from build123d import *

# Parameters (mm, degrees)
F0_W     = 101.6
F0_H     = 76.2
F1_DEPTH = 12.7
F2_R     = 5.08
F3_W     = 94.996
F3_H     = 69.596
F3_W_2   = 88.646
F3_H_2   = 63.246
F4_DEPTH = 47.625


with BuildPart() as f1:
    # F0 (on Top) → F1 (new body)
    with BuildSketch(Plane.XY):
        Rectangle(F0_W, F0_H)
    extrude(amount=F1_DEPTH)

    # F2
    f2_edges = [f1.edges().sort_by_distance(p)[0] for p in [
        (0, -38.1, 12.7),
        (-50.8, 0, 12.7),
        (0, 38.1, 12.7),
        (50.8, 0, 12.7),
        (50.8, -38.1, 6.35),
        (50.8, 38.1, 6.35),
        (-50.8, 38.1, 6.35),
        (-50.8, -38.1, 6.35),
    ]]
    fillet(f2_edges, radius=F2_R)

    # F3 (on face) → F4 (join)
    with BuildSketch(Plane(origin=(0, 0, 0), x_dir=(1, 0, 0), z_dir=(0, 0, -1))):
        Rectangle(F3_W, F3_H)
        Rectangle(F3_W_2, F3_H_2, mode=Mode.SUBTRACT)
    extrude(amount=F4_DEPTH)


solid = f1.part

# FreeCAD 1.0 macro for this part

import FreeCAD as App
import Part
import Sketcher

V = App.Vector
Q = App.Units.Quantity


def edges_at(feature, points):
    """Names of the edges that pass closest to the given points."""
    edges = feature.Shape.Edges
    near = lambda p: min(range(len(edges)), key=lambda i: edges[i].distToShape(Part.Vertex(*p))[0])
    return sorted({f"Edge{near(p) + 1}" for p in points})

doc = App.newDocument("Part")
body = doc.addObject("PartDesign::Body", "Body")

sketch1 = doc.addObject("Sketcher::SketchObject", "Sketch")
body.addObject(sketch1)
sketch1.AttachmentSupport = (doc.XY_Plane, [""])
sketch1.MapMode = "FlatFace"
sketch1.addGeometry(Part.LineSegment(V(-50.8, 38.1, 0), V(-50.8, -38.1, 0)), False)
sketch1.addGeometry(Part.LineSegment(V(-50.8, -38.1, 0), V(50.8, -38.1, 0)), False)
sketch1.addGeometry(Part.LineSegment(V(50.8, -38.1, 0), V(50.8, 38.1, 0)), False)
sketch1.addGeometry(Part.LineSegment(V(50.8, 38.1, 0), V(-50.8, 38.1, 0)), False)
sketch1.addConstraint(Sketcher.Constraint("Coincident", 0, 2, 1, 1))
sketch1.addConstraint(Sketcher.Constraint("Coincident", 1, 2, 2, 1))
sketch1.addConstraint(Sketcher.Constraint("Coincident", 2, 2, 3, 1))
sketch1.addConstraint(Sketcher.Constraint("Coincident", 3, 2, 0, 1))
sketch1.addConstraint(Sketcher.Constraint("Vertical", 0))
sketch1.addConstraint(Sketcher.Constraint("Horizontal", 1))
sketch1.addConstraint(Sketcher.Constraint("Vertical", 2))
sketch1.addConstraint(Sketcher.Constraint("Horizontal", 3))
sketch1.addConstraint(Sketcher.Constraint("Symmetric", 0, 2, 2, 2, -1, 1))
sketch1.addConstraint(Sketcher.Constraint("DistanceX", 1, 1, 1, 2, Q("4 in")))
sketch1.addConstraint(Sketcher.Constraint("DistanceY", 0, 2, 0, 1, Q("3 in")))
pad1 = doc.addObject("PartDesign::Pad", "Pad")
body.addObject(pad1)
pad1.Profile = sketch1
pad1.Length = Q("0.5 in")
doc.recompute()

fillet = doc.addObject("PartDesign::Fillet", "Fillet")
body.addObject(fillet)
fillet.Base = (pad1, edges_at(pad1, [
    (0, -38.1, 12.7),
    (-50.8, 0, 12.7),
    (0, 38.1, 12.7),
    (50.8, 0, 12.7),
    (50.8, -38.1, 6.35),
    (50.8, 38.1, 6.35),
    (-50.8, 38.1, 6.35),
    (-50.8, -38.1, 6.35),
]))
fillet.Radius = Q("0.2 in")

sketch2 = doc.addObject("Sketcher::SketchObject", "Sketch001")
body.addObject(sketch2)
sketch2.AttachmentSupport = (doc.XY_Plane, [""])
sketch2.MapMode = "FlatFace"
sketch2.addGeometry(Part.LineSegment(V(-47.498, -34.798, 0), V(-47.498, 34.798, 0)), False)
sketch2.addGeometry(Part.LineSegment(V(-47.498, 34.798, 0), V(47.498, 34.798, 0)), False)
sketch2.addGeometry(Part.LineSegment(V(47.498, 34.798, 0), V(47.498, -34.798, 0)), False)
sketch2.addGeometry(Part.LineSegment(V(47.498, -34.798, 0), V(-47.498, -34.798, 0)), False)
sketch2.addGeometry(Part.LineSegment(V(44.323, 31.623, 0), V(-44.323, 31.623, 0)), False)
sketch2.addGeometry(Part.LineSegment(V(-44.323, 31.623, 0), V(-44.323, -31.623, 0)), False)
sketch2.addGeometry(Part.LineSegment(V(-44.323, -31.623, 0), V(44.323, -31.623, 0)), False)
sketch2.addGeometry(Part.LineSegment(V(44.323, -31.623, 0), V(44.323, 31.623, 0)), False)
sketch2.addConstraint(Sketcher.Constraint("Coincident", 0, 2, 1, 1))
sketch2.addConstraint(Sketcher.Constraint("Coincident", 1, 2, 2, 1))
sketch2.addConstraint(Sketcher.Constraint("Coincident", 2, 2, 3, 1))
sketch2.addConstraint(Sketcher.Constraint("Coincident", 3, 2, 0, 1))
sketch2.addConstraint(Sketcher.Constraint("Coincident", 4, 2, 5, 1))
sketch2.addConstraint(Sketcher.Constraint("Coincident", 5, 2, 6, 1))
sketch2.addConstraint(Sketcher.Constraint("Coincident", 6, 2, 7, 1))
sketch2.addConstraint(Sketcher.Constraint("Coincident", 7, 2, 4, 1))
sketch2.addConstraint(Sketcher.Constraint("Vertical", 0))
sketch2.addConstraint(Sketcher.Constraint("Horizontal", 1))
sketch2.addConstraint(Sketcher.Constraint("Vertical", 2))
sketch2.addConstraint(Sketcher.Constraint("Horizontal", 3))
sketch2.addConstraint(Sketcher.Constraint("Horizontal", 4))
sketch2.addConstraint(Sketcher.Constraint("Vertical", 5))
sketch2.addConstraint(Sketcher.Constraint("Horizontal", 6))
sketch2.addConstraint(Sketcher.Constraint("Vertical", 7))
sketch2.addConstraint(Sketcher.Constraint("Symmetric", 0, 2, 2, 2, -1, 1))
sketch2.addConstraint(Sketcher.Constraint("Symmetric", 4, 2, 6, 2, -1, 1))
sketch2.addConstraint(Sketcher.Constraint("DistanceX", 1, 1, 1, 2, Q("3.74 in")))
sketch2.addConstraint(Sketcher.Constraint("DistanceX", 4, 2, 4, 1, Q("3.49 in")))
sketch2.addConstraint(Sketcher.Constraint("DistanceY", 0, 1, 0, 2, Q("2.74 in")))
sketch2.addConstraint(Sketcher.Constraint("DistanceY", 5, 2, 5, 1, Q("2.49 in")))
pad2 = doc.addObject("PartDesign::Pad", "Pad001")
body.addObject(pad2)
pad2.Profile = sketch2
pad2.Length = Q("1.875 in")
pad2.Reversed = True

doc.recompute()
